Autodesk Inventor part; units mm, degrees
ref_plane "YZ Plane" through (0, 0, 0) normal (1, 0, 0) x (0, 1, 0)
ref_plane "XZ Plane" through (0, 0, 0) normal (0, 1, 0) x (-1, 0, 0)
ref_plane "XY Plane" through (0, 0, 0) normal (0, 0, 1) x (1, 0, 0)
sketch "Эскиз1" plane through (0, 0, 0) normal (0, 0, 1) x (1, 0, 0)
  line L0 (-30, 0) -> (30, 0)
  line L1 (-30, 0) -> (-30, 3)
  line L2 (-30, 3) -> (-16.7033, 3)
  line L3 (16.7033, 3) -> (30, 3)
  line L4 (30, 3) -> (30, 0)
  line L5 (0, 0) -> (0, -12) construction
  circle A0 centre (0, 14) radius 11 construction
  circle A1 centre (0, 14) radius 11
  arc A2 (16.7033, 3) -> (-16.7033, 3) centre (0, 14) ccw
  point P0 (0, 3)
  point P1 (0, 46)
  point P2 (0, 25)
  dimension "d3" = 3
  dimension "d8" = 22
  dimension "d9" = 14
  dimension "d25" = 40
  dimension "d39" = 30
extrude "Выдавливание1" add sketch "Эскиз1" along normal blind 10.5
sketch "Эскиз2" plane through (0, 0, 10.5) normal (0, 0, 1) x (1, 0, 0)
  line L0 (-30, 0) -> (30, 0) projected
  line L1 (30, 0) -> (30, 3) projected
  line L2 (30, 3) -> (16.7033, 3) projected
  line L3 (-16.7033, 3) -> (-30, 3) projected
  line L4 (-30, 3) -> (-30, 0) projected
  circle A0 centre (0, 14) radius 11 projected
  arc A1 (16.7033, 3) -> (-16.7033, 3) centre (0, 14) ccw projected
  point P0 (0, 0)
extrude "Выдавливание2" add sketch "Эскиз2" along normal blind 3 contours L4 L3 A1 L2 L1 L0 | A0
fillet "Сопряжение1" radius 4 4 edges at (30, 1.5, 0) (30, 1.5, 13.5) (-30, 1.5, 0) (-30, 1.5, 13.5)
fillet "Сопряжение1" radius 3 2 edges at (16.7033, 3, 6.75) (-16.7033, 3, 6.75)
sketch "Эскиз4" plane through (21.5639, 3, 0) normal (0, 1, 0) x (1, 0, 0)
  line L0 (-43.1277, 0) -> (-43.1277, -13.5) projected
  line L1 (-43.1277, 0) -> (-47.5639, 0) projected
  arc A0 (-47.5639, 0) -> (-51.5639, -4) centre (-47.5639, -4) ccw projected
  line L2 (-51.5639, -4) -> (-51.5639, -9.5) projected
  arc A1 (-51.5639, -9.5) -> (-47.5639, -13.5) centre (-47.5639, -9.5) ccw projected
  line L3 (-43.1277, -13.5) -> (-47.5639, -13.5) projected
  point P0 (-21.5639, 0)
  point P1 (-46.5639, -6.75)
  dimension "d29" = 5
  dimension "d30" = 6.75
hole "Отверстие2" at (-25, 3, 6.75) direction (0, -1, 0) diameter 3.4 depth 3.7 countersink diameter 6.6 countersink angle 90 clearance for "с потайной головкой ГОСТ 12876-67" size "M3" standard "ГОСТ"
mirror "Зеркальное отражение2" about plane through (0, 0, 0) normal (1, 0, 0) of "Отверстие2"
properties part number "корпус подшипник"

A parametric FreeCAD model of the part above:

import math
import FreeCAD as App
import Part
import Sketcher
Q = App.Units.Quantity


def edges_at(feature, points):
    """Names of the edges that pass closest to the given points."""
    edges = feature.Shape.Edges
    near = lambda p: min(range(len(edges)), key=lambda i: edges[i].distToShape(Part.Vertex(*p))[0])
    return sorted({f"Edge{near(p) + 1}" for p in points})

doc = App.newDocument("Part")
body = doc.addObject("PartDesign::Body", "Body")

sketch1 = body.newObject("Sketcher::SketchObject", "Sketch")
sketch1.AttachmentSupport = (doc.getObject("XY_Plane"), [""])
sketch1.MapMode = "FlatFace"
sketch1.addGeometry(Part.LineSegment(App.Vector(-30, 3, 0), App.Vector(-30, 0, 0)), False)
sketch1.addGeometry(Part.LineSegment(App.Vector(-30, 0, 0), App.Vector(30, 0, 0)), False)
sketch1.addGeometry(Part.LineSegment(App.Vector(30, 0, 0), App.Vector(30, 3, 0)), False)
sketch1.addGeometry(Part.LineSegment(App.Vector(30, 3, 0), App.Vector(16.7, 3, 0)), False)
sketch1.addGeometry(Part.ArcOfCircle(Part.Circle(App.Vector(0, 14, 0), App.Vector(0, 0, 1), 20), math.radians(-33), math.radians(213)), False)
sketch1.addGeometry(Part.LineSegment(App.Vector(-16.7, 3, 0), App.Vector(-30, 3, 0)), False)
sketch1.addGeometry(Part.Circle(App.Vector(0, 14, 0), App.Vector(0, 0, 1), 11), False)
sketch1.addConstraint(Sketcher.Constraint("Coincident", 0, 2, 1, 1))
sketch1.addConstraint(Sketcher.Constraint("Coincident", 1, 2, 2, 1))
sketch1.addConstraint(Sketcher.Constraint("Coincident", 2, 2, 3, 1))
sketch1.addConstraint(Sketcher.Constraint("Coincident", 3, 2, 4, 1))
sketch1.addConstraint(Sketcher.Constraint("Coincident", 4, 2, 5, 1))
sketch1.addConstraint(Sketcher.Constraint("Coincident", 5, 2, 0, 1))
sketch1.addConstraint(Sketcher.Constraint("Vertical", 0))
sketch1.addConstraint(Sketcher.Constraint("Horizontal", 1))
sketch1.addConstraint(Sketcher.Constraint("Vertical", 2))
sketch1.addConstraint(Sketcher.Constraint("Horizontal", 3))
sketch1.addConstraint(Sketcher.Constraint("Horizontal", 5))
sketch1.addConstraint(Sketcher.Constraint("Coincident", 6, 3, 4, 3))
sketch1.addConstraint(Sketcher.Constraint("Symmetric", 0, 2, 1, 2, -1, 1))
sketch1.addConstraint(Sketcher.Constraint("Symmetric", 3, 2, 4, 2, -2))
sketch1.addConstraint(Sketcher.Constraint("Diameter", 6, Q("22 mm")))
sketch1.addConstraint(Sketcher.Constraint("Radius", 4, Q("20 mm")))
sketch1.addConstraint(Sketcher.Constraint("DistanceY", 0, 2, 0, 1, Q("3 mm")))
sketch1.addConstraint(Sketcher.Constraint("DistanceY", -1, 1, 4, 3, Q("14 mm")))
sketch1.addConstraint(Sketcher.Constraint("DistanceX", 0, 2, -1, 1, Q("30 mm")))
pad1 = body.newObject("PartDesign::Pad", "Pad")
pad1.Profile = sketch1
pad1.Length = 10.5

sketch2 = body.newObject("Sketcher::SketchObject", "Sketch001")
sketch2.AttachmentSupport = (doc.getObject("XY_Plane"), [""])
sketch2.MapMode = "FlatFace"
sketch2.AttachmentOffset = App.Placement(App.Vector(0, 0, 10.5), App.Rotation())
sketch2.addGeometry(Part.LineSegment(App.Vector(-30, 3, 0), App.Vector(-30, 0, 0)), False)
sketch2.addGeometry(Part.LineSegment(App.Vector(-30, 0, 0), App.Vector(30, 0, 0)), False)
sketch2.addGeometry(Part.LineSegment(App.Vector(30, 0, 0), App.Vector(30, 3, 0)), False)
sketch2.addGeometry(Part.LineSegment(App.Vector(30, 3, 0), App.Vector(16.7, 3, 0)), False)
sketch2.addGeometry(Part.ArcOfCircle(Part.Circle(App.Vector(0, 14, 0), App.Vector(0, 0, 1), 20), math.radians(-33), math.radians(213)), False)
sketch2.addGeometry(Part.LineSegment(App.Vector(-16.7, 3, 0), App.Vector(-30, 3, 0)), False)
sketch2.addConstraint(Sketcher.Constraint("Coincident", 0, 2, 1, 1))
sketch2.addConstraint(Sketcher.Constraint("Coincident", 1, 2, 2, 1))
sketch2.addConstraint(Sketcher.Constraint("Coincident", 2, 2, 3, 1))
sketch2.addConstraint(Sketcher.Constraint("Coincident", 3, 2, 4, 1))
sketch2.addConstraint(Sketcher.Constraint("Coincident", 4, 2, 5, 1))
sketch2.addConstraint(Sketcher.Constraint("Coincident", 5, 2, 0, 1))
sketch2.addConstraint(Sketcher.Constraint("Vertical", 0))
sketch2.addConstraint(Sketcher.Constraint("Horizontal", 1))
sketch2.addConstraint(Sketcher.Constraint("Vertical", 2))
sketch2.addConstraint(Sketcher.Constraint("Horizontal", 3))
sketch2.addConstraint(Sketcher.Constraint("Horizontal", 5))
sketch2.addConstraint(Sketcher.Constraint("Symmetric", 0, 2, 1, 2, -1, 1))
sketch2.addConstraint(Sketcher.Constraint("Symmetric", 3, 2, 4, 2, -2))
sketch2.addConstraint(Sketcher.Constraint("Radius", 4, Q("20 mm")))
sketch2.addConstraint(Sketcher.Constraint("DistanceX", 1, 1, 1, 2, Q("60 mm")))
sketch2.addConstraint(Sketcher.Constraint("DistanceY", 0, 2, 0, 1, Q("3 mm")))
sketch2.addConstraint(Sketcher.Constraint("DistanceY", -1, 1, 4, 3, Q("14 mm")))
pad2 = body.newObject("PartDesign::Pad", "Pad001")
pad2.Profile = sketch2
pad2.Length = 3
doc.recompute()

fillet = body.newObject("PartDesign::Fillet", "Fillet")
fillet.Base = (pad2, edges_at(pad2, [
    (30, 1.5, 0),
    (30, 1.5, 13.5),
    (-30, 1.5, 0),
    (-30, 1.5, 13.5),
]))
fillet.Radius = 4
doc.recompute()

fillet2 = body.newObject("PartDesign::Fillet", "Fillet001")
fillet2.Base = (fillet, edges_at(fillet, [(16.703, 3, 6.75), (-16.703, 3, 6.75)]))
fillet2.Radius = 3

sketch3 = body.newObject("Sketcher::SketchObject", "Sketch002")
sketch3.AttachmentSupport = (doc.getObject("XZ_Plane"), [""])
sketch3.MapMode = "FlatFace"
sketch3.AttachmentOffset = App.Placement(App.Vector(0, 0, -3), App.Rotation())
sketch3.addGeometry(Part.Circle(App.Vector(-25, 6.8, 0), App.Vector(0, 0, 1), 1.7), False)
sketch3.addConstraint(Sketcher.Constraint("Diameter", 0, Q("3.4 mm")))
sketch3.addConstraint(Sketcher.Constraint("DistanceX", 0, 3, -1, 1, Q("25 mm")))
sketch3.addConstraint(Sketcher.Constraint("DistanceY", -1, 1, 0, 3, Q("6.75 mm")))
doc.recompute()
hole = body.newObject("PartDesign::Hole", "Hole")
hole.Profile = sketch3
hole.ThreadType = "None"
hole.Diameter = 3.4
hole.DepthType = "Dimension"
hole.Depth = 3.7
hole.DrillPoint = "Flat"
hole.HoleCutType = "Countersink"
hole.HoleCutDiameter = 6.6
hole.HoleCutCountersinkAngle = 90
hole.Reversed = True
doc.recompute()

mirrored = body.newObject("PartDesign::Mirrored", "Mirrored")
mirrored.Originals = [hole]
mirrored.MirrorPlane = (doc.getObject("YZ_Plane"), [""])
body.Tip = mirrored

doc.recompute()
